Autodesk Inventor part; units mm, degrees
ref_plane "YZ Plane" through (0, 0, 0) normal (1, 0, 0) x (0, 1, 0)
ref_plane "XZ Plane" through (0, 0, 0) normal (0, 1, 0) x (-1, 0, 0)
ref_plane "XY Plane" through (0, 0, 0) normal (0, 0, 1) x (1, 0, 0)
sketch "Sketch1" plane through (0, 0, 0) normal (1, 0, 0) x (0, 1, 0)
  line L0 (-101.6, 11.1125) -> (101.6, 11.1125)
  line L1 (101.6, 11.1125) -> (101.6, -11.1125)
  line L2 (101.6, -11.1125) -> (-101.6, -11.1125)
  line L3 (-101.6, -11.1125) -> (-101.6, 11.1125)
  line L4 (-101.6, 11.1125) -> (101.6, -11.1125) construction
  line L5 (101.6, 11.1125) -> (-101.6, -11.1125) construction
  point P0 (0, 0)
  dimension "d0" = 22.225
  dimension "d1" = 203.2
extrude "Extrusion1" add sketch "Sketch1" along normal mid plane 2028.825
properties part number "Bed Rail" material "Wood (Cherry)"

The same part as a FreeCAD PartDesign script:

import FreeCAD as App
import Part
import Sketcher

V = App.Vector
Q = App.Units.Quantity

doc = App.newDocument("Part")
body = doc.addObject("PartDesign::Body", "Body")

# Sketch on YZ plane
sketch1 = body.newObject("Sketcher::SketchObject", "Sketch")
sketch1.AttachmentSupport = (doc.getObject("YZ_Plane"), [""])
sketch1.MapMode = "FlatFace"
sketch1.addGeometry([
    Part.LineSegment(V(101.6, 11.1125, 0), V(-101.6, 11.1125, 0)),
    Part.LineSegment(V(-101.6, 11.1125, 0), V(-101.6, -11.1125, 0)),
    Part.LineSegment(V(-101.6, -11.1125, 0), V(101.6, -11.1125, 0)),
    Part.LineSegment(V(101.6, -11.1125, 0), V(101.6, 11.1125, 0)),
], False)
sketch1.addConstraint([
    Sketcher.Constraint("Coincident", 0, 2, 1, 1),
    Sketcher.Constraint("Coincident", 1, 2, 2, 1),
    Sketcher.Constraint("Coincident", 2, 2, 3, 1),
    Sketcher.Constraint("Coincident", 3, 2, 0, 1),
    Sketcher.Constraint("Horizontal", 0),
    Sketcher.Constraint("Vertical", 1),
    Sketcher.Constraint("Horizontal", 2),
    Sketcher.Constraint("Vertical", 3),
    Sketcher.Constraint("Symmetric", 0, 2, 2, 2, -1, 1),
    Sketcher.Constraint("DistanceX", 0, 2, 0, 1, Q("8 in")),
    Sketcher.Constraint("DistanceY", 1, 2, 1, 1, Q("0.875 in")),
])
pad1 = body.newObject("PartDesign::Pad", "Pad")
pad1.Profile = sketch1
pad1.Length = Q("79.875 in")
pad1.Midplane = True

doc.recompute()
